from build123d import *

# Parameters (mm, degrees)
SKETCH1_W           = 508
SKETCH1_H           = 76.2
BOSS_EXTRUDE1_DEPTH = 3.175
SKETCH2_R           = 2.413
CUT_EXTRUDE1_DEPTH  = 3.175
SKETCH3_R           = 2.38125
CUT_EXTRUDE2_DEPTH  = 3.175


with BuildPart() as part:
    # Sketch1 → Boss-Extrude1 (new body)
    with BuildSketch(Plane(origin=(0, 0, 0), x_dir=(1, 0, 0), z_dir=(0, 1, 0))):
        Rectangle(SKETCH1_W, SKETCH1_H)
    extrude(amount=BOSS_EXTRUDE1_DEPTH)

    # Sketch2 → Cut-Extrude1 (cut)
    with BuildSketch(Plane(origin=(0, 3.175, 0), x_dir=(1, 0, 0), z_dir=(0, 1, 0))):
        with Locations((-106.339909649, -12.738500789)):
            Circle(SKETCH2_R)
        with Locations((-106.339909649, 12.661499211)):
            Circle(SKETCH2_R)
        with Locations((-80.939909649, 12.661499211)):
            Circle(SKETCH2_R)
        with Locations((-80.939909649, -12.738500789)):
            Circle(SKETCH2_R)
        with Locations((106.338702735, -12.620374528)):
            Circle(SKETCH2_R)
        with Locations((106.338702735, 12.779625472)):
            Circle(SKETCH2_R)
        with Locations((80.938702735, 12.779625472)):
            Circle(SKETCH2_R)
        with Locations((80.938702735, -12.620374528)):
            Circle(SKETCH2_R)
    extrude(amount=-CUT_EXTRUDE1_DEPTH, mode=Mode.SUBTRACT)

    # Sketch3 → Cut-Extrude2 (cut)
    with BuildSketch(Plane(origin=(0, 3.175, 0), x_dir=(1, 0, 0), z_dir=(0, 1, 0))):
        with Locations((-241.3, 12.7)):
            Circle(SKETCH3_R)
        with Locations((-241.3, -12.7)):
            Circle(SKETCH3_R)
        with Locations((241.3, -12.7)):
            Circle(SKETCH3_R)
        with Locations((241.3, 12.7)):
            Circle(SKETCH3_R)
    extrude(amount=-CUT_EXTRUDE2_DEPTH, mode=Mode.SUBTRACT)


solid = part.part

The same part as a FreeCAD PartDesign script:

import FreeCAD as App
import Part
import Sketcher
from FreeCAD import Vector
Q = App.Units.Quantity


def add_polygon(sketch, points):
    """Adds a closed chain of lines whose ends are joined by coincident constraints."""
    first, n = sketch.GeometryCount, len(points)
    for a, b in zip(points, points[1:] + points[:1]):
        sketch.addGeometry(Part.LineSegment(App.Vector(*a, 0), App.Vector(*b, 0)), False)
    for i in range(n):
        sketch.addConstraint(Sketcher.Constraint("Coincident", first + i, 2, first + (i + 1) % n, 1))

doc = App.newDocument("Part")
body = doc.addObject("PartDesign::Body", "Body")

# Sketch on XZ plane
sketch1 = body.newObject("Sketcher::SketchObject", "Sketch")
sketch1.AttachmentSupport = (doc.getObject("XZ_Plane"), [""])
sketch1.MapMode = "FlatFace"
add_polygon(sketch1, [(-254, -38.1), (-254, 38.1), (254, 38.1), (254, -38.1)])  # lines 0-3
sketch1.addConstraint(Sketcher.Constraint("Vertical", 0))
sketch1.addConstraint(Sketcher.Constraint("Horizontal", 1))
sketch1.addConstraint(Sketcher.Constraint("Vertical", 2))
sketch1.addConstraint(Sketcher.Constraint("Horizontal", 3))
sketch1.addConstraint(Sketcher.Constraint("Symmetric", 0, 2, 2, 2, -1, 1))
sketch1.addConstraint(Sketcher.Constraint("DistanceX", 1, 1, 1, 2, Q("20 in")))
sketch1.addConstraint(Sketcher.Constraint("DistanceY", 0, 1, 0, 2, Q("3 in")))
pad1 = body.newObject("PartDesign::Pad", "Pad")
pad1.Profile = sketch1
pad1.Length = Q("0.125 in")
pad1.Reversed = True

# Sketch on XZ plane
sketch2 = body.newObject("Sketcher::SketchObject", "Sketch001")
sketch2.AttachmentSupport = (doc.getObject("XZ_Plane"), [""])
sketch2.MapMode = "FlatFace"
sketch2.AttachmentOffset = App.Placement(Vector(0, 0, -0.125 * 25.4), App.Rotation())
sketch2.addGeometry(Part.Circle(Vector(-106.33991, 12.738501, 0), Vector(0, 0, 1), 2.413), False)
sketch2.addGeometry(Part.Circle(Vector(-106.33991, -12.661499, 0), Vector(0, 0, 1), 2.413), False)
sketch2.addGeometry(Part.Circle(Vector(-80.93991, -12.661499, 0), Vector(0, 0, 1), 2.413), False)
sketch2.addGeometry(Part.Circle(Vector(-80.93991, 12.738501, 0), Vector(0, 0, 1), 2.413), False)
sketch2.addGeometry(Part.Circle(Vector(106.338703, 12.620375, 0), Vector(0, 0, 1), 2.413), False)
sketch2.addGeometry(Part.Circle(Vector(106.338703, -12.779625, 0), Vector(0, 0, 1), 2.413), False)
sketch2.addGeometry(Part.Circle(Vector(80.938703, -12.779625, 0), Vector(0, 0, 1), 2.413), False)
sketch2.addGeometry(Part.Circle(Vector(80.938703, 12.620375, 0), Vector(0, 0, 1), 2.413), False)
sketch2.addConstraint(Sketcher.Constraint("Equal", 0, 1))
sketch2.addConstraint(Sketcher.Constraint("Equal", 1, 2))
sketch2.addConstraint(Sketcher.Constraint("Equal", 2, 3))
sketch2.addConstraint(Sketcher.Constraint("Equal", 3, 4))
sketch2.addConstraint(Sketcher.Constraint("Equal", 4, 5))
sketch2.addConstraint(Sketcher.Constraint("Equal", 5, 6))
sketch2.addConstraint(Sketcher.Constraint("Equal", 6, 7))
sketch2.addConstraint(Sketcher.Constraint("Horizontal", 1, 3, 2, 3))
sketch2.addConstraint(Sketcher.Constraint("Horizontal", 0, 3, 3, 3))
sketch2.addConstraint(Sketcher.Constraint("Horizontal", 5, 3, 6, 3))
sketch2.addConstraint(Sketcher.Constraint("Horizontal", 4, 3, 7, 3))
sketch2.addConstraint(Sketcher.Constraint("Vertical", 0, 3, 1, 3))
sketch2.addConstraint(Sketcher.Constraint("Vertical", 2, 3, 3, 3))
sketch2.addConstraint(Sketcher.Constraint("Vertical", 4, 3, 5, 3))
sketch2.addConstraint(Sketcher.Constraint("Vertical", 6, 3, 7, 3))
sketch2.addConstraint(Sketcher.Constraint("Diameter", 0, Q("0.19 in")))
sketch2.addConstraint(Sketcher.Constraint("DistanceY", 1, 3, 0, 3, Q("1 in")))
sketch2.addConstraint(Sketcher.Constraint("DistanceX", 1, 3, 2, 3, Q("1 in")))
sketch2.addConstraint(Sketcher.Constraint("DistanceY", 5, 3, 4, 3, Q("1 in")))
sketch2.addConstraint(Sketcher.Constraint("DistanceX", 6, 3, 5, 3, Q("1 in")))
sketch2.addConstraint(Sketcher.Constraint("DistanceY", -1, 1, 0, 3, 12.738501))
sketch2.addConstraint(Sketcher.Constraint("DistanceX", 0, 3, -1, 1, 106.33991))
sketch2.addConstraint(Sketcher.Constraint("DistanceX", -1, 1, 4, 3, 106.338703))
sketch2.addConstraint(Sketcher.Constraint("DistanceY", -1, 1, 4, 3, 12.620375))
pocket1 = body.newObject("PartDesign::Pocket", "Pocket")
pocket1.Profile = sketch2
pocket1.Length = Q("0.125 in")
pocket1.Reversed = True

# Sketch on XZ plane
sketch3 = body.newObject("Sketcher::SketchObject", "Sketch002")
sketch3.AttachmentSupport = (doc.getObject("XZ_Plane"), [""])
sketch3.MapMode = "FlatFace"
sketch3.AttachmentOffset = App.Placement(Vector(0, 0, -0.125 * 25.4), App.Rotation())
sketch3.addGeometry(Part.Circle(Vector(-241.3, -12.7, 0), Vector(0, 0, 1), 2.38125), False)
sketch3.addGeometry(Part.Circle(Vector(-241.3, 12.7, 0), Vector(0, 0, 1), 2.38125), False)
sketch3.addGeometry(Part.Circle(Vector(241.3, 12.7, 0), Vector(0, 0, 1), 2.38125), False)
sketch3.addGeometry(Part.Circle(Vector(241.3, -12.7, 0), Vector(0, 0, 1), 2.38125), False)
sketch3.addConstraint(Sketcher.Constraint("Equal", 0, 1))
sketch3.addConstraint(Sketcher.Constraint("Equal", 1, 2))
sketch3.addConstraint(Sketcher.Constraint("Equal", 2, 3))
sketch3.addConstraint(Sketcher.Constraint("Symmetric", 0, 3, 2, 3, -1, 1))
sketch3.addConstraint(Sketcher.Constraint("Symmetric", 1, 3, 3, 3, -1, 1))
sketch3.addConstraint(Sketcher.Constraint("Symmetric", 1, 3, 2, 3, -2))
sketch3.addConstraint(Sketcher.Constraint("Diameter", 0, Q("0.1875 in")))
sketch3.addConstraint(Sketcher.Constraint("DistanceY", 0, 3, 1, 3, Q("1 in")))
sketch3.addConstraint(Sketcher.Constraint("DistanceX", 1, 3, 2, 3, Q("19 in")))
pocket2 = body.newObject("PartDesign::Pocket", "Pocket001")
pocket2.Profile = sketch3
pocket2.Length = Q("0.125 in")
pocket2.Reversed = True

doc.recompute()
